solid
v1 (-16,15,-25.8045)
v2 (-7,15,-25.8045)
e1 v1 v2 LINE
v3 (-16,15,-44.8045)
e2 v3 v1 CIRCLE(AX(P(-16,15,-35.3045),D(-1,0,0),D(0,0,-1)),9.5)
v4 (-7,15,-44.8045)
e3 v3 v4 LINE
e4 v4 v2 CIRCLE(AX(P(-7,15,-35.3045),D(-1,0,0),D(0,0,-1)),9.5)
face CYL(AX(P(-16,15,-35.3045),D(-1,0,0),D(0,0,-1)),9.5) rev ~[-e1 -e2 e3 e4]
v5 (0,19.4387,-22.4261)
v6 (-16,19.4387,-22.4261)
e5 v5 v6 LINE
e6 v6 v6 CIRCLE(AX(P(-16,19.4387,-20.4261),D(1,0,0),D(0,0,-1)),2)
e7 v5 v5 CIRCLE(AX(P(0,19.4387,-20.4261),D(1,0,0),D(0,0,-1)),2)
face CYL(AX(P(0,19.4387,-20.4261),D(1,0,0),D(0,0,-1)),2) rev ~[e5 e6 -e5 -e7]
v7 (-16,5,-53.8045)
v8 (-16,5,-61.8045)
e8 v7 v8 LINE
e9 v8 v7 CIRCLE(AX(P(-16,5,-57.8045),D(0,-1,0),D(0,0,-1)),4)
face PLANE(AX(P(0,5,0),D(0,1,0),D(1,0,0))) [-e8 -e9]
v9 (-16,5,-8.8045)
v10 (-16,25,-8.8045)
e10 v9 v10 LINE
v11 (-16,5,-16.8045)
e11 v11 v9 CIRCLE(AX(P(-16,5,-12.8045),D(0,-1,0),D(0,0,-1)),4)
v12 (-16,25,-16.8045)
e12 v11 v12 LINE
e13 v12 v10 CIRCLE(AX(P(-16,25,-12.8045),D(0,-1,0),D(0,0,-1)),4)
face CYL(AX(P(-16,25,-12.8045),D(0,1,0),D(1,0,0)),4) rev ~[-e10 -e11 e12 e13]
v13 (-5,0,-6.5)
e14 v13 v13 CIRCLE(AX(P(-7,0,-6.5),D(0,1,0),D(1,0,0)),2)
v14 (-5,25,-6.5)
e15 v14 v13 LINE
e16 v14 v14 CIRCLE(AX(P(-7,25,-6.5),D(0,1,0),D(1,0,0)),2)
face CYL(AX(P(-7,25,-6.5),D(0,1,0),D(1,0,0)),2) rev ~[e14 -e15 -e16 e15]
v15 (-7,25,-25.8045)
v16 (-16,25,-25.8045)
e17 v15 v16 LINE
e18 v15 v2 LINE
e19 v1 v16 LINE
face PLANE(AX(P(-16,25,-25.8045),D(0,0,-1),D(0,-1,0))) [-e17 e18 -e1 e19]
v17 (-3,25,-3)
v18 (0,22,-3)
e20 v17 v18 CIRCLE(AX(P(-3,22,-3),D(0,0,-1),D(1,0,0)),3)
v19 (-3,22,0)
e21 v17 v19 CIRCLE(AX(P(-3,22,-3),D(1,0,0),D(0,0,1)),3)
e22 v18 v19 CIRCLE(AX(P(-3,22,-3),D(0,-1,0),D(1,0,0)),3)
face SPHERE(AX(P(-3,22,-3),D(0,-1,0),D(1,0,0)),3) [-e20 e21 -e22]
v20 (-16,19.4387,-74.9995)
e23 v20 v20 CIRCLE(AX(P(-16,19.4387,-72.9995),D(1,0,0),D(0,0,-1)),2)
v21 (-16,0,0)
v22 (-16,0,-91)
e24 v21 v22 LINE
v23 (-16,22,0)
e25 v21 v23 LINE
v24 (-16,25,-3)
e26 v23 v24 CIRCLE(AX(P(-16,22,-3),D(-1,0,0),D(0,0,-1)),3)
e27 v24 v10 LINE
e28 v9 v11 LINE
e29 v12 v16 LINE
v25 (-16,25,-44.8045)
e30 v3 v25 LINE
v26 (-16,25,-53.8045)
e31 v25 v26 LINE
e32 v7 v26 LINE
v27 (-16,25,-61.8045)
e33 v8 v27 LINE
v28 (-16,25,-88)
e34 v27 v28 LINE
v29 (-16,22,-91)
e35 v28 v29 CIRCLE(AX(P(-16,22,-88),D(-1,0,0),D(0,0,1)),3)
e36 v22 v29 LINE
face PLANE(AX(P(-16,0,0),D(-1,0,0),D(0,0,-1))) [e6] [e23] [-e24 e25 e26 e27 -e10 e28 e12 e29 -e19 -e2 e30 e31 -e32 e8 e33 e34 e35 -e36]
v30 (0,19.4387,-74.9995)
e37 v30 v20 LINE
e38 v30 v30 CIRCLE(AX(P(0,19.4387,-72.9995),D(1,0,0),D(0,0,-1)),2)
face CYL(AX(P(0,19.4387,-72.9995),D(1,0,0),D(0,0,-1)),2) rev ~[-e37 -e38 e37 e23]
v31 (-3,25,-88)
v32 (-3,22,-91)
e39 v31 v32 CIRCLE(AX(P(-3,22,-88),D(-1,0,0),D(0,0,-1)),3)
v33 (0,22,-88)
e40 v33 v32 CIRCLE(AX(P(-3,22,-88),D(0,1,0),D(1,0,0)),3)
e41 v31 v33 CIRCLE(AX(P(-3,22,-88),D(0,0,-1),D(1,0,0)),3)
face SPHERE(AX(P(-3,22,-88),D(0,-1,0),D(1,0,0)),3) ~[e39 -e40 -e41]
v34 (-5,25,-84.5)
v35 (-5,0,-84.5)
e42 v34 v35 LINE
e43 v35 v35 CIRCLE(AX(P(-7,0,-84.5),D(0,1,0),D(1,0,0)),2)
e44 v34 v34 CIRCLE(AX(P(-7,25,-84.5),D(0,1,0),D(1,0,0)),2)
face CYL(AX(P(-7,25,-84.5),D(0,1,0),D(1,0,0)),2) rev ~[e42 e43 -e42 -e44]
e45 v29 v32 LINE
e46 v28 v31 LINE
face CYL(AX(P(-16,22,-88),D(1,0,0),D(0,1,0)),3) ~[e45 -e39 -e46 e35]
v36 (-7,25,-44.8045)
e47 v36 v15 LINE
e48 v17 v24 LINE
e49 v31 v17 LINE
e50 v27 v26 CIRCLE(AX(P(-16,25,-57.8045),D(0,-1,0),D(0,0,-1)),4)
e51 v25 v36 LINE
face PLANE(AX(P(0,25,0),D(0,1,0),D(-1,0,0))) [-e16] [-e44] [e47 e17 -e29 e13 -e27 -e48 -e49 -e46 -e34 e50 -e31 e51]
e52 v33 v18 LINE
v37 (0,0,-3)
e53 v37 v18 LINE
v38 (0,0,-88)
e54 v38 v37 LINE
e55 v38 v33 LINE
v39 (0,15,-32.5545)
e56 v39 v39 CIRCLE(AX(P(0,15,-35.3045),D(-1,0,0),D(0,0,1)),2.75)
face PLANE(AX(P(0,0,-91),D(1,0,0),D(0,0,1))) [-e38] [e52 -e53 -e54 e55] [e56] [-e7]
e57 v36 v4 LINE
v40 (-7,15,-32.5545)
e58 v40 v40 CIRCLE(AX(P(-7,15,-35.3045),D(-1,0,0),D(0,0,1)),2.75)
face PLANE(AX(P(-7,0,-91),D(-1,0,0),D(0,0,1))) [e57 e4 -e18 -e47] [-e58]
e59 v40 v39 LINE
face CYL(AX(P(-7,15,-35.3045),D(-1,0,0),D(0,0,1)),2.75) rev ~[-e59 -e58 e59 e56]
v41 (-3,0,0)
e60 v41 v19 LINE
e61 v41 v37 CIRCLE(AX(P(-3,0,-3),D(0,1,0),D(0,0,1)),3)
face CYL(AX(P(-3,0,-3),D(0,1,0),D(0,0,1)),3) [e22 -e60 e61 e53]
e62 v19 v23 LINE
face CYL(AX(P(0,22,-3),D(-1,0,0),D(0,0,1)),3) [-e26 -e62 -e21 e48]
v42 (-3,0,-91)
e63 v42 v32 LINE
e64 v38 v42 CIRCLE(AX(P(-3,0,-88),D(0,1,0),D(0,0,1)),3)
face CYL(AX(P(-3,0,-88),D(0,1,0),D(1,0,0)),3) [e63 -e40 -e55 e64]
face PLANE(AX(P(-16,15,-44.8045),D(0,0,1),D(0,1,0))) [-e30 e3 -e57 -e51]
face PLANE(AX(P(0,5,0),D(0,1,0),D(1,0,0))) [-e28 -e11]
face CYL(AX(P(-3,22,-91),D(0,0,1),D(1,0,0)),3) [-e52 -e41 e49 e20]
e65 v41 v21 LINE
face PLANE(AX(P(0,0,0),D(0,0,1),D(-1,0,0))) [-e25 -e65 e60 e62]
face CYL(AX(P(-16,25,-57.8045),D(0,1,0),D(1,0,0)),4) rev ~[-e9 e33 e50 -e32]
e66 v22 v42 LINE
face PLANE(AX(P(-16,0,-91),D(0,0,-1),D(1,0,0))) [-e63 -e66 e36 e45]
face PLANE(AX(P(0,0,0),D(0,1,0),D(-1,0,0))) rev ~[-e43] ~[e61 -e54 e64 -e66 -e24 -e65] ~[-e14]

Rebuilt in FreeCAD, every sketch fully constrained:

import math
import FreeCAD as App
import Part
import Sketcher


def edges_at(feature, points):
    """Names of the edges that pass closest to the given points."""
    edges = feature.Shape.Edges
    near = lambda p: min(range(len(edges)), key=lambda i: edges[i].distToShape(Part.Vertex(*p))[0])
    return sorted({f"Edge{near(p) + 1}" for p in points})


def add_polygon(sketch, points):
    """Adds a closed chain of lines whose ends are joined by coincident constraints."""
    first, n = sketch.GeometryCount, len(points)
    for a, b in zip(points, points[1:] + points[:1]):
        sketch.addGeometry(Part.LineSegment(App.Vector(*a, 0), App.Vector(*b, 0)), False)
    for i in range(n):
        sketch.addConstraint(Sketcher.Constraint("Coincident", first + i, 2, first + (i + 1) % n, 1))

doc = App.newDocument("Part")
body = doc.addObject("PartDesign::Body", "Body")

# Sketch on XZ plane
sketch1 = doc.addObject("Sketcher::SketchObject", "Sketch")
body.addObject(sketch1)
sketch1.AttachmentSupport = (doc.XZ_Plane, [""])
sketch1.MapMode = "FlatFace"
add_polygon(sketch1, [(-16, 0), (0, 0), (0, -91), (-16, -91)])  # lines 0-3
sketch1.addConstraint(Sketcher.Constraint("Horizontal", 0))
sketch1.addConstraint(Sketcher.Constraint("Vertical", 1))
sketch1.addConstraint(Sketcher.Constraint("Horizontal", 2))
sketch1.addConstraint(Sketcher.Constraint("Vertical", 3))
sketch1.addConstraint(Sketcher.Constraint("Coincident", 0, 2, -1, 1))
sketch1.addConstraint(Sketcher.Constraint("DistanceX", 0, 1, 0, 2, 16.0))
sketch1.addConstraint(Sketcher.Constraint("DistanceY", 1, 2, 1, 1, 91.0))
pad1 = doc.addObject("PartDesign::Pad", "Pad")
body.addObject(pad1)
pad1.Profile = sketch1
pad1.Length = 25
pad1.Reversed = True

# Sketch on XZ plane
sketch2 = doc.addObject("Sketcher::SketchObject", "Sketch001")
body.addObject(sketch2)
sketch2.AttachmentSupport = (doc.XZ_Plane, [""])
sketch2.MapMode = "FlatFace"
sketch2.AttachmentOffset = App.Placement(App.Vector(0, 0, -25), App.Rotation())
sketch2.addGeometry(Part.Circle(App.Vector(-16, -57.8, 0), App.Vector(0, 0, 1), 4), False)
sketch2.addGeometry(Part.Circle(App.Vector(-16, -12.8, 0), App.Vector(0, 0, 1), 4), False)
sketch2.addConstraint(Sketcher.Constraint("Equal", 0, 1))
sketch2.addConstraint(Sketcher.Constraint("Vertical", 0, 3, 1, 3))
sketch2.addConstraint(Sketcher.Constraint("Diameter", 0, 8.0))
sketch2.addConstraint(Sketcher.Constraint("DistanceY", 0, 3, 1, 3, 45.0))
sketch2.addConstraint(Sketcher.Constraint("DistanceX", 0, 3, -1, 1, 16.0))
sketch2.addConstraint(Sketcher.Constraint("DistanceY", 0, 3, -1, 1, 57.8045))
pocket1 = doc.addObject("PartDesign::Pocket", "Pocket")
body.addObject(pocket1)
pocket1.Profile = sketch2
pocket1.Length = 20
pocket1.Reversed = True
doc.recompute()

fillet = doc.addObject("PartDesign::Fillet", "Fillet")
body.addObject(fillet)
fillet.Base = (pocket1, edges_at(pocket1, [
    (0, 12.5, -91),
    (0, 12.5, 0),
    (0, 25, -45.5),
    (-8, 25, -91),
    (-8, 25, 0),
]))
fillet.Radius = 3

# Sketch on YZ plane
sketch3 = doc.addObject("Sketcher::SketchObject", "Sketch002")
body.addObject(sketch3)
sketch3.AttachmentSupport = (doc.YZ_Plane, [""])
sketch3.MapMode = "FlatFace"
sketch3.addGeometry(Part.Circle(App.Vector(19.4, -20.4, 0), App.Vector(0, 0, 1), 2), False)
sketch3.addGeometry(Part.Circle(App.Vector(19.4, -73, 0), App.Vector(0, 0, 1), 2), False)
sketch3.addConstraint(Sketcher.Constraint("Equal", 0, 1))
sketch3.addConstraint(Sketcher.Constraint("Vertical", 0, 3, 1, 3))
sketch3.addConstraint(Sketcher.Constraint("Diameter", 0, 4.0))
sketch3.addConstraint(Sketcher.Constraint("DistanceY", 0, 3, -1, 1, 20.426))
sketch3.addConstraint(Sketcher.Constraint("DistanceX", -1, 1, 0, 3, 19.4387))
sketch3.addConstraint(Sketcher.Constraint("DistanceY", 1, 3, -1, 1, 72.9995))
pocket2 = doc.addObject("PartDesign::Pocket", "Pocket001")
body.addObject(pocket2)
pocket2.Profile = sketch3
pocket2.Length = 30

# Sketch on YZ plane
sketch4 = doc.addObject("Sketcher::SketchObject", "Sketch003")
body.addObject(sketch4)
sketch4.AttachmentSupport = (doc.YZ_Plane, [""])
sketch4.MapMode = "FlatFace"
sketch4.AttachmentOffset = App.Placement(App.Vector(0, 0, -16), App.Rotation())
sketch4.addGeometry(Part.ArcOfCircle(Part.Circle(App.Vector(15, -35, 0), App.Vector(0, 0, 1), 10), math.radians(90), math.radians(270)), False)
sketch4.addGeometry(Part.LineSegment(App.Vector(15, -26, 0), App.Vector(30, -26, 0)), False)
sketch4.addGeometry(Part.LineSegment(App.Vector(30, -26, 0), App.Vector(30, -45, 0)), False)
sketch4.addGeometry(Part.LineSegment(App.Vector(30, -45, 0), App.Vector(15, -45, 0)), False)
sketch4.addConstraint(Sketcher.Constraint("Tangent", 0, 1, 1, 1))
sketch4.addConstraint(Sketcher.Constraint("Coincident", 1, 2, 2, 1))
sketch4.addConstraint(Sketcher.Constraint("Coincident", 2, 2, 3, 1))
sketch4.addConstraint(Sketcher.Constraint("Tangent", 3, 2, 0, 2))
sketch4.addConstraint(Sketcher.Constraint("Horizontal", 1))
sketch4.addConstraint(Sketcher.Constraint("Vertical", 2))
sketch4.addConstraint(Sketcher.Constraint("Horizontal", 3))
sketch4.addConstraint(Sketcher.Constraint("Radius", 0, 9.5))
sketch4.addConstraint(Sketcher.Constraint("DistanceX", -1, 1, 0, 3, 15.0))
sketch4.addConstraint(Sketcher.Constraint("DistanceX", 1, 1, 1, 2, 15.053))
sketch4.addConstraint(Sketcher.Constraint("DistanceY", 0, 3, -1, 1, 35.3045))
pocket3 = doc.addObject("PartDesign::Pocket", "Pocket002")
body.addObject(pocket3)
pocket3.Profile = sketch4
pocket3.Length = 9
pocket3.Reversed = True

# Sketch on YZ plane
sketch5 = doc.addObject("Sketcher::SketchObject", "Sketch004")
body.addObject(sketch5)
sketch5.AttachmentSupport = (doc.YZ_Plane, [""])
sketch5.MapMode = "FlatFace"
sketch5.AttachmentOffset = App.Placement(App.Vector(0, 0, -7), App.Rotation())
sketch5.addGeometry(Part.Circle(App.Vector(15, -35.3, 0), App.Vector(0, 0, 1), 2.8), False)
sketch5.addConstraint(Sketcher.Constraint("Diameter", 0, 5.5))
sketch5.addConstraint(Sketcher.Constraint("DistanceX", -1, 1, 0, 3, 15.0))
sketch5.addConstraint(Sketcher.Constraint("DistanceY", 0, 3, -1, 1, 35.3045))
pocket4 = doc.addObject("PartDesign::Pocket", "Pocket003")
body.addObject(pocket4)
pocket4.Profile = sketch5
pocket4.Length = 30
pocket4.Reversed = True

# Sketch on XZ plane
sketch6 = doc.addObject("Sketcher::SketchObject", "Sketch005")
body.addObject(sketch6)
sketch6.AttachmentSupport = (doc.XZ_Plane, [""])
sketch6.MapMode = "FlatFace"
sketch6.AttachmentOffset = App.Placement(App.Vector(0, 0, -25), App.Rotation())
sketch6.addGeometry(Part.Circle(App.Vector(-7, -6.5, 0), App.Vector(0, 0, 1), 2), False)
sketch6.addGeometry(Part.Circle(App.Vector(-7, -84.5, 0), App.Vector(0, 0, 1), 2), False)
sketch6.addConstraint(Sketcher.Constraint("Equal", 0, 1))
sketch6.addConstraint(Sketcher.Constraint("Vertical", 0, 3, 1, 3))
sketch6.addConstraint(Sketcher.Constraint("Diameter", 0, 4.0))
sketch6.addConstraint(Sketcher.Constraint("DistanceY", 0, 3, -1, 1, 6.5))
sketch6.addConstraint(Sketcher.Constraint("DistanceX", 0, 3, -1, 1, 7.0))
sketch6.addConstraint(Sketcher.Constraint("DistanceY", 1, 3, 0, 3, 78.0))
pocket5 = doc.addObject("PartDesign::Pocket", "Pocket004")
body.addObject(pocket5)
pocket5.Profile = sketch6
pocket5.Length = 30
pocket5.Reversed = True

doc.recompute()
